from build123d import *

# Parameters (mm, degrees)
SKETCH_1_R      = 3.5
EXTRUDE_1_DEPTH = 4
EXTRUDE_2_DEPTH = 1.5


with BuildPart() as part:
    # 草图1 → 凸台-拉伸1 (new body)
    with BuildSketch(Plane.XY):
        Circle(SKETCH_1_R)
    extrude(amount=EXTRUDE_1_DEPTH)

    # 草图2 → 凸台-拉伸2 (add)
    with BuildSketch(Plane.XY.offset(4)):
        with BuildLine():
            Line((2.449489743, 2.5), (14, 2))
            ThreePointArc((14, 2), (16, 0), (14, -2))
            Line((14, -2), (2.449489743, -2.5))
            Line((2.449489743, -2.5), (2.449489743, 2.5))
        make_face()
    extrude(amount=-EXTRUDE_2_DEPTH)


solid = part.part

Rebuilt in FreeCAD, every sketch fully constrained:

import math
import FreeCAD as App
import Part
import Sketcher

V = App.Vector

doc = App.newDocument("Part")
body = doc.addObject("PartDesign::Body", "Body")

# Sketch on XY plane
sketch1 = body.newObject("Sketcher::SketchObject", "Sketch")
sketch1.AttachmentSupport = (doc.getObject("XY_Plane"), [""])
sketch1.MapMode = "FlatFace"
sketch1.addGeometry(Part.Circle(V(0, 0, 0), V(0, 0, 1), 3.5), False)
sketch1.addConstraint([
    Sketcher.Constraint("Coincident", 0, 3, -1, 1),
    Sketcher.Constraint("Diameter", 0, 7.0),
])
pad1 = body.newObject("PartDesign::Pad", "Pad")
pad1.Profile = sketch1
pad1.Length = 4

# Sketch on XY plane
sketch2 = body.newObject("Sketcher::SketchObject", "Sketch001")
sketch2.AttachmentSupport = (doc.getObject("XY_Plane"), [""])
sketch2.MapMode = "FlatFace"
sketch2.AttachmentOffset = App.Placement(V(0, 0, 4), App.Rotation())
sketch2.addGeometry([
    Part.LineSegment(V(14, 2, 0), V(2.4, 2.5, 0)),
    Part.LineSegment(V(2.4, 2.5, 0), V(2.4, -2.5, 0)),
    Part.LineSegment(V(2.4, -2.5, 0), V(14, -2, 0)),
    Part.ArcOfCircle(Part.Circle(V(14, 0, 0), V(0, 0, 1), 2), math.radians(-90), math.radians(90)),
], False)
sketch2.addConstraint([
    Sketcher.Constraint("Coincident", 0, 2, 1, 1),
    Sketcher.Constraint("Coincident", 1, 2, 2, 1),
    Sketcher.Constraint("Coincident", 2, 2, 3, 1),
    Sketcher.Constraint("Coincident", 3, 2, 0, 1),
    Sketcher.Constraint("Vertical", 1),
    Sketcher.Constraint("Symmetric", 2, 2, 3, 2, -1),
    Sketcher.Constraint("Vertical", 3, 3, 2, 2),
    Sketcher.Constraint("Equal", 0, 2),
    Sketcher.Constraint("Radius", 3, 2.0),
    Sketcher.Constraint("DistanceY", 1, 2, 1, 1, 5.0),
    Sketcher.Constraint("DistanceX", -1, 1, 3, 3, 14.0),
    Sketcher.Constraint("DistanceX", -1, 1, 0, 2, 2.44949),
])
pad2 = body.newObject("PartDesign::Pad", "Pad001")
pad2.Profile = sketch2
pad2.Length = 1.5
pad2.Reversed = True

doc.recompute()
